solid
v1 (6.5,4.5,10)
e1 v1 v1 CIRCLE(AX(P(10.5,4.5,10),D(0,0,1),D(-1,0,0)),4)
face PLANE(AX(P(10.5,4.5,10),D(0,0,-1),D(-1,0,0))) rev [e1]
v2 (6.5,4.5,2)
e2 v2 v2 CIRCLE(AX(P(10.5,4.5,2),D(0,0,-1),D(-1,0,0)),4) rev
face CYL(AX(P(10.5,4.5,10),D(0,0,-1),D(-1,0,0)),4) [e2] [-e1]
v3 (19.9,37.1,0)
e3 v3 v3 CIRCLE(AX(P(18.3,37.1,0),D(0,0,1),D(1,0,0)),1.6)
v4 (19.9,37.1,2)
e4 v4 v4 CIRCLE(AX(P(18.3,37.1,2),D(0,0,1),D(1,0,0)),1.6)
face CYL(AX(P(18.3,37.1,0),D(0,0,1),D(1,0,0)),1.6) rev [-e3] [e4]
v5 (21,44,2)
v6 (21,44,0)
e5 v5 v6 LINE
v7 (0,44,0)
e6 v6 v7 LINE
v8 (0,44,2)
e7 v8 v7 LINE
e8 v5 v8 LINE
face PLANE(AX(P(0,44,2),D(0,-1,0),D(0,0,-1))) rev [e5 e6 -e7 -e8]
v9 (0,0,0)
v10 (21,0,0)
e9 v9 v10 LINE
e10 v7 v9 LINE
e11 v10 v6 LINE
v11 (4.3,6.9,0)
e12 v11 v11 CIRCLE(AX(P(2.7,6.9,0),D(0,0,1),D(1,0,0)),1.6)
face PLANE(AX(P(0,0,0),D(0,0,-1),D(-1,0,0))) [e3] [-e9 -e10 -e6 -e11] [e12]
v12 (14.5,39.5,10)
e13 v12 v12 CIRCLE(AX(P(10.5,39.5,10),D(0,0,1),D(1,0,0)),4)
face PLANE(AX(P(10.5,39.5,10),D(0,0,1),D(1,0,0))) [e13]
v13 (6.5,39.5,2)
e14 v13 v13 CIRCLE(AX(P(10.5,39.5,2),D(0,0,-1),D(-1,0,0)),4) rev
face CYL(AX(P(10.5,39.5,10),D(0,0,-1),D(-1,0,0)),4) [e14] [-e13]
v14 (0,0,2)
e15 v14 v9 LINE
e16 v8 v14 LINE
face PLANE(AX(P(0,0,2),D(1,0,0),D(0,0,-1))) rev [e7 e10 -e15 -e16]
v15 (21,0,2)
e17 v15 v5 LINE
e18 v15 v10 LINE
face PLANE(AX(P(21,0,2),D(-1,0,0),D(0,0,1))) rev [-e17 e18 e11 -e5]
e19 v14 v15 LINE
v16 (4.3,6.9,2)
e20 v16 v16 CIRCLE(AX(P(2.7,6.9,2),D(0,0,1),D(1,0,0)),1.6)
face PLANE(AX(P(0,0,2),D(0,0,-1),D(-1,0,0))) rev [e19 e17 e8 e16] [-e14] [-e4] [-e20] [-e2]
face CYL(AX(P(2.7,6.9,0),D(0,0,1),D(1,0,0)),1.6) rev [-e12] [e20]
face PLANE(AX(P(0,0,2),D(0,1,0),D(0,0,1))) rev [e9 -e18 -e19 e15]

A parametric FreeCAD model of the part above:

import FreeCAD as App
import Part
import Sketcher

V = App.Vector

doc = App.newDocument("Part")
body = doc.addObject("PartDesign::Body", "Body")

# Sketch on XY plane
sketch1 = body.newObject("Sketcher::SketchObject", "Sketch")
sketch1.AttachmentSupport = (doc.getObject("XY_Plane"), [""])
sketch1.MapMode = "FlatFace"
sketch1.addGeometry(Part.LineSegment(V(0, 44, 0), V(0, 0, 0)), False)
sketch1.addGeometry(Part.LineSegment(V(0, 0, 0), V(21, 0, 0)), False)
sketch1.addGeometry(Part.LineSegment(V(21, 0, 0), V(21, 44, 0)), False)
sketch1.addGeometry(Part.LineSegment(V(21, 44, 0), V(0, 44, 0)), False)
sketch1.addConstraint(Sketcher.Constraint("Coincident", 0, 2, 1, 1))
sketch1.addConstraint(Sketcher.Constraint("Coincident", 1, 2, 2, 1))
sketch1.addConstraint(Sketcher.Constraint("Coincident", 2, 2, 3, 1))
sketch1.addConstraint(Sketcher.Constraint("Coincident", 3, 2, 0, 1))
sketch1.addConstraint(Sketcher.Constraint("Vertical", 0))
sketch1.addConstraint(Sketcher.Constraint("Horizontal", 1))
sketch1.addConstraint(Sketcher.Constraint("Vertical", 2))
sketch1.addConstraint(Sketcher.Constraint("Horizontal", 3))
sketch1.addConstraint(Sketcher.Constraint("Coincident", 0, 2, -1, 1))
sketch1.addConstraint(Sketcher.Constraint("DistanceX", 1, 1, 1, 2, 21.0))
sketch1.addConstraint(Sketcher.Constraint("DistanceY", 0, 2, 0, 1, 44.0))
pad1 = body.newObject("PartDesign::Pad", "Pad")
pad1.Profile = sketch1
pad1.Length = 2

# Sketch on XY plane
sketch2 = body.newObject("Sketcher::SketchObject", "Sketch001")
sketch2.AttachmentSupport = (doc.getObject("XY_Plane"), [""])
sketch2.MapMode = "FlatFace"
sketch2.AttachmentOffset = App.Placement(V(0, 0, 2), App.Rotation())
sketch2.addGeometry(Part.Circle(V(18.3, 37.1, 0), V(0, 0, 1), 1.6), False)
sketch2.addGeometry(Part.Circle(V(2.7, 6.9, 0), V(0, 0, 1), 1.6), False)
sketch2.addConstraint(Sketcher.Constraint("Equal", 0, 1))
sketch2.addConstraint(Sketcher.Constraint("Diameter", 0, 3.2))
sketch2.addConstraint(Sketcher.Constraint("DistanceX", -1, 1, 0, 3, 18.3))
sketch2.addConstraint(Sketcher.Constraint("DistanceY", -1, 1, 0, 3, 37.1))
sketch2.addConstraint(Sketcher.Constraint("DistanceX", -1, 1, 1, 3, 2.7))
sketch2.addConstraint(Sketcher.Constraint("DistanceY", -1, 1, 1, 3, 6.9))
pocket1 = body.newObject("PartDesign::Pocket", "Pocket")
pocket1.Profile = sketch2
pocket1.Type = "ThroughAll"

# Sketch on XY plane
sketch3 = body.newObject("Sketcher::SketchObject", "Sketch002")
sketch3.AttachmentSupport = (doc.getObject("XY_Plane"), [""])
sketch3.MapMode = "FlatFace"
sketch3.AttachmentOffset = App.Placement(V(0, 0, 2), App.Rotation())
sketch3.addGeometry(Part.Circle(V(10.5, 39.5, 0), V(0, 0, 1), 4), False)
sketch3.addGeometry(Part.Circle(V(10.5, 4.5, 0), V(0, 0, 1), 4), False)
sketch3.addConstraint(Sketcher.Constraint("Equal", 0, 1))
sketch3.addConstraint(Sketcher.Constraint("Vertical", 0, 3, 1, 3))
sketch3.addConstraint(Sketcher.Constraint("Diameter", 0, 8.0))
sketch3.addConstraint(Sketcher.Constraint("DistanceY", 1, 3, 0, 3, 35.0))
sketch3.addConstraint(Sketcher.Constraint("DistanceX", -1, 1, 0, 3, 10.5))
sketch3.addConstraint(Sketcher.Constraint("DistanceY", -1, 1, 0, 3, 39.5))
pad2 = body.newObject("PartDesign::Pad", "Pad001")
pad2.Profile = sketch3
pad2.Length = 8

doc.recompute()
